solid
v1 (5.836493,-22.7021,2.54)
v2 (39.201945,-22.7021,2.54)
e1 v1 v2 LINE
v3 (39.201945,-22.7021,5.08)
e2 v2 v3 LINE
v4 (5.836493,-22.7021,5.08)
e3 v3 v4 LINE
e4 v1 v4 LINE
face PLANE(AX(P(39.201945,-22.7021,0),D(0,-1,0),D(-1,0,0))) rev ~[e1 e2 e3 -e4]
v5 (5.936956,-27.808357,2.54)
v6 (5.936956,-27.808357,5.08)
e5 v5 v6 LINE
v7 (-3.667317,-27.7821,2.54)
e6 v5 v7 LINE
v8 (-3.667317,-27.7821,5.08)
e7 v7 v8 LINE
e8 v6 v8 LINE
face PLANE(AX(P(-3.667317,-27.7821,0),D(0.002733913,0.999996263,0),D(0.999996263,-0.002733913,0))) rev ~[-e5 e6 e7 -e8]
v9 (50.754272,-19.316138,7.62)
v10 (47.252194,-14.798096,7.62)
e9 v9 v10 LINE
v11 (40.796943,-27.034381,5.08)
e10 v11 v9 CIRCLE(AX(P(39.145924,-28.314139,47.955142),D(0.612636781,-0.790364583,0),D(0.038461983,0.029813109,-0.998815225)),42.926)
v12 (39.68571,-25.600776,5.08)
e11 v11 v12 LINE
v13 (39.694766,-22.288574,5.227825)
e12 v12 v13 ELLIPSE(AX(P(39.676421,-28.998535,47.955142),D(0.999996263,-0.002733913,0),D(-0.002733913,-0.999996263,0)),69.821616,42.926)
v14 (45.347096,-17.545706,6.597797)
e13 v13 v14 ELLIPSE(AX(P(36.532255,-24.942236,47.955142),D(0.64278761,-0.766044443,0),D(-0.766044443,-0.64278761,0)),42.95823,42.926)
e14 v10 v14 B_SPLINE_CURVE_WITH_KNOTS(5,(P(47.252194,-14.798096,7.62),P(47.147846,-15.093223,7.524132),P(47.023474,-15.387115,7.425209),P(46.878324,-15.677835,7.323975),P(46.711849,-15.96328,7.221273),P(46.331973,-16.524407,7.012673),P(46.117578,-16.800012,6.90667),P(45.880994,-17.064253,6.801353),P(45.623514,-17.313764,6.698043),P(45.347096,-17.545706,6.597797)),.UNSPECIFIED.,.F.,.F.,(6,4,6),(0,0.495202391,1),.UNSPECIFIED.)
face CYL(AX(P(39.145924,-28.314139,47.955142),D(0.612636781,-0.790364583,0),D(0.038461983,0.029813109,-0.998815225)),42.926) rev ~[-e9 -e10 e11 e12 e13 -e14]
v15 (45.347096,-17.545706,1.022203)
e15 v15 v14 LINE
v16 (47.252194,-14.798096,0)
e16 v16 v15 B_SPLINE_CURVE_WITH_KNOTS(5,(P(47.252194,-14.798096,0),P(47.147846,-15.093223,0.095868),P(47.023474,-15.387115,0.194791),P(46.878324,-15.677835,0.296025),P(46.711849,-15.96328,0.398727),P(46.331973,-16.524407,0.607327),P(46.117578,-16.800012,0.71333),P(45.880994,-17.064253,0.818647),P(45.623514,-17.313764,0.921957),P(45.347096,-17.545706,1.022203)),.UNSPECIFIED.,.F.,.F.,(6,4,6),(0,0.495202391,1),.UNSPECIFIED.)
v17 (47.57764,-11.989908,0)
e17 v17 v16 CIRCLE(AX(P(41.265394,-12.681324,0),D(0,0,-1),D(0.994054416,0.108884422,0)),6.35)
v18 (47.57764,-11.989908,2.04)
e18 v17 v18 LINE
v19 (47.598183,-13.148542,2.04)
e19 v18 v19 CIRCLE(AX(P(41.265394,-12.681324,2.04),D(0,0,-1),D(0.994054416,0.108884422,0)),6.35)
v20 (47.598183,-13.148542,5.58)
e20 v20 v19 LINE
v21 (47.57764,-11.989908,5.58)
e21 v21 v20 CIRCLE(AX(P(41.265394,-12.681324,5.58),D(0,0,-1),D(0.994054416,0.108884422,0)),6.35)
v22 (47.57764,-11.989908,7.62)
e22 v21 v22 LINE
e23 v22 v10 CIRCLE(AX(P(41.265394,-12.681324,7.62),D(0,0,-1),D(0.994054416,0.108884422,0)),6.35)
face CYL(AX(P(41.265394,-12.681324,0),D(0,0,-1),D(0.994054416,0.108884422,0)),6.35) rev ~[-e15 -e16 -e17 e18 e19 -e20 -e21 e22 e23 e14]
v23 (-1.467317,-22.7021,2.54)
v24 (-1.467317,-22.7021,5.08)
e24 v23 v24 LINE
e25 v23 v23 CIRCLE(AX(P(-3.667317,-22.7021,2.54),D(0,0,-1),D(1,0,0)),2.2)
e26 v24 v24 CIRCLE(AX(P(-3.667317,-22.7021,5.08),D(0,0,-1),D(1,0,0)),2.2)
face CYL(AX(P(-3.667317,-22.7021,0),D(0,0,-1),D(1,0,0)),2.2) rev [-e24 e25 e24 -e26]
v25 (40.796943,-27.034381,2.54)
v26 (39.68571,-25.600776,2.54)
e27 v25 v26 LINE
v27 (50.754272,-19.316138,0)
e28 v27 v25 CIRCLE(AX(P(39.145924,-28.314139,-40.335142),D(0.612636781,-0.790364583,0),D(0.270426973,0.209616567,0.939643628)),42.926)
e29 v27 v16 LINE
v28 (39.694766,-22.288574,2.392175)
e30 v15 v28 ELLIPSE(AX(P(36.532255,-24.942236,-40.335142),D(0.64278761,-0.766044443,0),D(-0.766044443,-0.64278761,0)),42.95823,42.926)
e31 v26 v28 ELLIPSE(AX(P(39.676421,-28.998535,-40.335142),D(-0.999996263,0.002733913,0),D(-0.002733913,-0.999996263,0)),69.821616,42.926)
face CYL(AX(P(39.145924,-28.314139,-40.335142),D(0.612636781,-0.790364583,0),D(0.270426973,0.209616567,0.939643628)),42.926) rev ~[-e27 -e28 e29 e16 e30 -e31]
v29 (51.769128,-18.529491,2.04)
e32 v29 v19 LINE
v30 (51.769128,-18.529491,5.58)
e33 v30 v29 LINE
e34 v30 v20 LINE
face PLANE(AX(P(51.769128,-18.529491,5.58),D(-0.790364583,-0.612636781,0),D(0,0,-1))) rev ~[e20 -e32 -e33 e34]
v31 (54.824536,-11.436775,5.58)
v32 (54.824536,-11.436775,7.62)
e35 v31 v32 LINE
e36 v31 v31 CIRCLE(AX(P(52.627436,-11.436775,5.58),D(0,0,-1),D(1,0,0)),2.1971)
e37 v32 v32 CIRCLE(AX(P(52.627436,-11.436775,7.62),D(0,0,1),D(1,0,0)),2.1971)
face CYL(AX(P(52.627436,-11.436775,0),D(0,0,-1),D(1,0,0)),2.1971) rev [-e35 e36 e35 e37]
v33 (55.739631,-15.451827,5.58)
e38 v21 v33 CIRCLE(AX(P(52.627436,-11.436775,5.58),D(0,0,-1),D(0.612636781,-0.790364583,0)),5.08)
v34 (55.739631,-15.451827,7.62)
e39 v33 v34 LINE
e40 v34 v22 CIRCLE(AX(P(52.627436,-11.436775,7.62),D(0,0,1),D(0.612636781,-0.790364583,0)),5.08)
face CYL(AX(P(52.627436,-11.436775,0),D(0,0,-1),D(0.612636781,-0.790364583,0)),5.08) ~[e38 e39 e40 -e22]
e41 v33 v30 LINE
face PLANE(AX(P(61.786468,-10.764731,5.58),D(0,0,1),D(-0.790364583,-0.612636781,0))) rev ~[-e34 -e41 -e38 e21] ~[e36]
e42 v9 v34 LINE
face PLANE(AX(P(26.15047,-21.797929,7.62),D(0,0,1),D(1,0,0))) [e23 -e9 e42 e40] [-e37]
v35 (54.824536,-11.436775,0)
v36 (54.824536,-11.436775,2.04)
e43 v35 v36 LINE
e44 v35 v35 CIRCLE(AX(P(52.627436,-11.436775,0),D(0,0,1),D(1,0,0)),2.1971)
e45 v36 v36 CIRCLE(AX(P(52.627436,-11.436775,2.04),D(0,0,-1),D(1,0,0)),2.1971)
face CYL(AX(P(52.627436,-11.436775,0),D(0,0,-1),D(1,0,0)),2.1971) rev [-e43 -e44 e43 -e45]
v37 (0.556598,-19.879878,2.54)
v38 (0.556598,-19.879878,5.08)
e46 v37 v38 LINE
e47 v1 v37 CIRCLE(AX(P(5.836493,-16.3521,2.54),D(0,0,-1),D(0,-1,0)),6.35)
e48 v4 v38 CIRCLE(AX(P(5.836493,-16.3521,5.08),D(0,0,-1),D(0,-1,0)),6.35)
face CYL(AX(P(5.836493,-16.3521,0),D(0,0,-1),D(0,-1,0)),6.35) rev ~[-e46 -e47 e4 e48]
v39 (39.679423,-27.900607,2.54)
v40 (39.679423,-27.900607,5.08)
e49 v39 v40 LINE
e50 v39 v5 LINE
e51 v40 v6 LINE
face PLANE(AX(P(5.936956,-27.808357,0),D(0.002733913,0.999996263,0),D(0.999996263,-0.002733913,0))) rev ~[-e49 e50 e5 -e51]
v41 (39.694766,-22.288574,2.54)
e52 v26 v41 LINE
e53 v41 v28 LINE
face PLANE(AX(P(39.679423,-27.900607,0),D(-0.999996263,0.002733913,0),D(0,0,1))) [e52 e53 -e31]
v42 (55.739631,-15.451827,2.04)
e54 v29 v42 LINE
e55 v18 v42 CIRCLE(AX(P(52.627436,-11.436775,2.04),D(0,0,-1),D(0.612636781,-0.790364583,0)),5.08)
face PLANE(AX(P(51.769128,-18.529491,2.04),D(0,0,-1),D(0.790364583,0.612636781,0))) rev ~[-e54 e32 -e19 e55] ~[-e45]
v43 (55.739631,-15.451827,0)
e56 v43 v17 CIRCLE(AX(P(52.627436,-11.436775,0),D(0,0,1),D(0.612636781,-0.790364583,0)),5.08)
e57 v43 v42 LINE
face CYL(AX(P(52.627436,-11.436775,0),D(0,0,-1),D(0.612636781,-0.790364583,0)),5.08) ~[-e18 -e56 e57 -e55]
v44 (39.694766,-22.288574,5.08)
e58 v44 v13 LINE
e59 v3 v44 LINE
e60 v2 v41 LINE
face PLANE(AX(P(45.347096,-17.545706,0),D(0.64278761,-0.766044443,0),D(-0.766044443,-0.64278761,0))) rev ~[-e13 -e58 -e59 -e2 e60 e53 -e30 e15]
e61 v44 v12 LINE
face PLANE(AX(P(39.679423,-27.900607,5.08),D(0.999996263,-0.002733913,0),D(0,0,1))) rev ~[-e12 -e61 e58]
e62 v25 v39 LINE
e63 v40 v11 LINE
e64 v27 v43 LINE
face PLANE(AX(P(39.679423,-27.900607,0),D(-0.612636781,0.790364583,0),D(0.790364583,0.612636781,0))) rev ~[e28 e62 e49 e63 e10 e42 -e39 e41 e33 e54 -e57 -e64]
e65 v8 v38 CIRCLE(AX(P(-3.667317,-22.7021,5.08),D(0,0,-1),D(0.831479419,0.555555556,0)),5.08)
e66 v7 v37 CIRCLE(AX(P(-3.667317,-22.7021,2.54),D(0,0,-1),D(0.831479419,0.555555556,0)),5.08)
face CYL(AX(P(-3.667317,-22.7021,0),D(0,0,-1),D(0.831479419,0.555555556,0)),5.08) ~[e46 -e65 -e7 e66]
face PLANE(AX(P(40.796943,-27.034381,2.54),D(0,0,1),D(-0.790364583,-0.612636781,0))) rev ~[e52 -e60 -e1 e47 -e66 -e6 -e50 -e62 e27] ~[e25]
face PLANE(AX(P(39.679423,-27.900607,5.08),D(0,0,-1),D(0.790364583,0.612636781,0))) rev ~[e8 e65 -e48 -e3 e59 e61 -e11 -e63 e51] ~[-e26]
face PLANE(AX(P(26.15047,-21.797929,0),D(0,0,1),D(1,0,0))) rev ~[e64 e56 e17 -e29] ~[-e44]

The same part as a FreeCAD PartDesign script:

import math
import FreeCAD as App
import Part
import Sketcher
Q = App.Units.Quantity

doc = App.newDocument("Part")
params = doc.addObject("Spreadsheet::Sheet", "Params")
for row, (alias, value) in enumerate([
    ("sketch1_radius", "0.2 in"),
    ("sketch1_radius2", "0.25 in"),
    ("sketch1_diameter", "0.173 in"),
    ("sketch1_length", "0.8 in"),
    ("pad1_length", "0.3 in"),
    ("sketch2_height", "0.1 in"),
    ("pocket1_length", "1 in"),
    ("sketch3_radius", "1.69 in"),
    ("sketch3_height", "0.1 in"),
    ("pocket2_length", "1 in"),
], start=1):
    params.set(f"A{row}", alias)
    params.set(f"B{row}", "=" + value)
    params.setAlias(f"B{row}", alias)

body = doc.addObject("PartDesign::Body", "Body")

# Sketch on XY plane
sketch1 = body.newObject("Sketcher::SketchObject", "Sketch")
sketch1.AttachmentSupport = (doc.getObject("XY_Plane"), [""])
sketch1.MapMode = "FlatFace"
sketch1.addGeometry(Part.LineSegment(App.Vector(5.936956, -27.808357, 0), App.Vector(39.679423, -27.900607, 0)), False)
sketch1.addGeometry(Part.LineSegment(App.Vector(39.679423, -27.900607, 0), App.Vector(55.739631, -15.451827, 0)), False)
sketch1.addGeometry(Part.ArcOfCircle(Part.Circle(App.Vector(52.627436, -11.436775, 0), App.Vector(0, 0, 1), 5.08), math.radians(-52.219595), math.radians(186.251011)), False)
sketch1.addGeometry(Part.ArcOfCircle(Part.Circle(App.Vector(41.265394, -12.681324, 0), App.Vector(0, 0, 1), 6.35), math.radians(-50), math.radians(6.251011)), False)
sketch1.addGeometry(Part.LineSegment(App.Vector(45.347096, -17.545706, 0), App.Vector(39.201945, -22.7021, 0)), False)
sketch1.addGeometry(Part.LineSegment(App.Vector(39.201945, -22.7021, 0), App.Vector(5.836493, -22.7021, 0)), False)
sketch1.addGeometry(Part.ArcOfCircle(Part.Circle(App.Vector(5.836493, -16.3521, 0), App.Vector(0, 0, 1), 6.35), math.radians(-146.251011), math.radians(-90)), False)
sketch1.addGeometry(Part.ArcOfCircle(Part.Circle(App.Vector(-3.667317, -22.7021, 0), App.Vector(0, 0, 1), 5.08), math.radians(33.748989), math.radians(270)), False)
sketch1.addGeometry(Part.LineSegment(App.Vector(-3.667317, -27.7821, 0), App.Vector(5.936956, -27.808357, 0)), False)
sketch1.addGeometry(Part.Circle(App.Vector(-3.667317, -22.7021, 0), App.Vector(0, 0, 1), 2.2), False)
sketch1.addGeometry(Part.Circle(App.Vector(52.627436, -11.436775, 0), App.Vector(0, 0, 1), 2.1971), False)
sketch1.addConstraint(Sketcher.Constraint("Coincident", 0, 2, 1, 1))
sketch1.addConstraint(Sketcher.Constraint("Tangent", 1, 2, 2, 1))
sketch1.addConstraint(Sketcher.Constraint("Tangent", 2, 2, 3, 2))
sketch1.addConstraint(Sketcher.Constraint("Tangent", 3, 1, 4, 1))
sketch1.addConstraint(Sketcher.Constraint("Coincident", 4, 2, 5, 1))
sketch1.addConstraint(Sketcher.Constraint("Tangent", 5, 2, 6, 2))
sketch1.addConstraint(Sketcher.Constraint("Tangent", 6, 1, 7, 1))
sketch1.addConstraint(Sketcher.Constraint("Coincident", 7, 2, 8, 1))
sketch1.addConstraint(Sketcher.Constraint("Coincident", 8, 2, 0, 1))
sketch1.addConstraint(Sketcher.Constraint("Horizontal", 5))
sketch1.addConstraint(Sketcher.Constraint("Coincident", 9, 3, 7, 3))
sketch1.addConstraint(Sketcher.Constraint("Coincident", 10, 3, 2, 3))
sketch1.addConstraint(Sketcher.Constraint("Equal", 3, 6))
sketch1.addConstraint(Sketcher.Constraint("Equal", 2, 7))
sketch1.addConstraint(Sketcher.Constraint("Parallel", 0, 8))
sketch1.addConstraint(Sketcher.Constraint("Horizontal", 9, 3, 4, 2))
sketch1.addConstraint(Sketcher.Constraint("Vertical", 9, 3, 7, 2))
sketch1.addConstraint(Sketcher.Constraint("Radius", 2, Q("0.2 in")))
sketch1.addConstraint(Sketcher.Constraint("Radius", 3, Q("0.25 in")))
sketch1.addConstraint(Sketcher.Constraint("Diameter", 10, Q("0.173 in")))
sketch1.addConstraint(Sketcher.Constraint("Angle", 4, Q("-140 deg")))
sketch1.addConstraint(Sketcher.Constraint("Distance", 1, Q("0.8 in")))
sketch1.addConstraint(Sketcher.Constraint("Diameter", 9, 4.4))
sketch1.addConstraint(Sketcher.Constraint("DistanceY", 6, 3, -1, 1, 16.3521))
sketch1.addConstraint(Sketcher.Constraint("DistanceX", -1, 1, 6, 1, 0.556598))
sketch1.addConstraint(Sketcher.Constraint("DistanceX", 6, 3, 3, 3, 35.428902))
sketch1.addConstraint(Sketcher.Constraint("DistanceY", 0, 2, 2, 2, 15.910699))
sketch1.addConstraint(Sketcher.Constraint("DistanceY", 3, 1, 2, 2, 5.555798))
sketch1.addConstraint(Sketcher.Constraint("Distance", 8, 9.604309))
sketch1.addConstraint(Sketcher.Constraint("DistanceX", 5, 2, 5, 1, 33.365452))
sketch1.setExpression("Constraints[17]", "Params.sketch1_radius")
sketch1.setExpression("Constraints[18]", "Params.sketch1_radius2")
sketch1.setExpression("Constraints[19]", "Params.sketch1_diameter")
sketch1.setExpression("Constraints[21]", "Params.sketch1_length")
pad1 = body.newObject("PartDesign::Pad", "Pad")
pad1.Profile = sketch1
pad1.setExpression("Length", "Params.pad1_length")

# Sketch on an angled plane
sketch2 = body.newObject("Sketcher::SketchObject", "Sketch001")
sketch2.Placement = App.Placement(App.Vector(-0.075981, -27.791918, 0), App.Rotation(App.Vector(0.999996263, -0.002733913, 0), App.Vector(0, 0, 1), App.Vector(-0.002733913, -0.999996263, 0), "ZXY"))
sketch2.addGeometry(Part.LineSegment(App.Vector(-12.18849, 2.54, 0), App.Vector(-12.18849, 0, 0)), False)
sketch2.addGeometry(Part.LineSegment(App.Vector(-12.18849, 0, 0), App.Vector(39.755552, 0, 0)), False)
sketch2.addGeometry(Part.LineSegment(App.Vector(39.755552, 0, 0), App.Vector(39.755552, 2.54, 0)), False)
sketch2.addGeometry(Part.LineSegment(App.Vector(39.755552, 2.54, 0), App.Vector(-12.18849, 2.54, 0)), False)
sketch2.addGeometry(Part.LineSegment(App.Vector(-12.18849, 7.62, 0), App.Vector(-12.18849, 5.08, 0)), False)
sketch2.addGeometry(Part.LineSegment(App.Vector(-12.18849, 5.08, 0), App.Vector(39.755552, 5.08, 0)), False)
sketch2.addGeometry(Part.LineSegment(App.Vector(39.755552, 5.08, 0), App.Vector(39.755552, 7.62, 0)), False)
sketch2.addGeometry(Part.LineSegment(App.Vector(39.755552, 7.62, 0), App.Vector(-12.18849, 7.62, 0)), False)
sketch2.addConstraint(Sketcher.Constraint("Coincident", 0, 2, 1, 1))
sketch2.addConstraint(Sketcher.Constraint("Coincident", 1, 2, 2, 1))
sketch2.addConstraint(Sketcher.Constraint("Coincident", 2, 2, 3, 1))
sketch2.addConstraint(Sketcher.Constraint("Coincident", 3, 2, 0, 1))
sketch2.addConstraint(Sketcher.Constraint("Coincident", 4, 2, 5, 1))
sketch2.addConstraint(Sketcher.Constraint("Coincident", 5, 2, 6, 1))
sketch2.addConstraint(Sketcher.Constraint("Coincident", 6, 2, 7, 1))
sketch2.addConstraint(Sketcher.Constraint("Coincident", 7, 2, 4, 1))
sketch2.addConstraint(Sketcher.Constraint("Vertical", 0))
sketch2.addConstraint(Sketcher.Constraint("Horizontal", 1))
sketch2.addConstraint(Sketcher.Constraint("Vertical", 2))
sketch2.addConstraint(Sketcher.Constraint("Horizontal", 3))
sketch2.addConstraint(Sketcher.Constraint("Vertical", 4))
sketch2.addConstraint(Sketcher.Constraint("Horizontal", 5))
sketch2.addConstraint(Sketcher.Constraint("Vertical", 6))
sketch2.addConstraint(Sketcher.Constraint("Horizontal", 7))
sketch2.addConstraint(Sketcher.Constraint("PointOnObject", 0, 2, -1))
sketch2.addConstraint(Sketcher.Constraint("Vertical", 3, 2, 4, 2))
sketch2.addConstraint(Sketcher.Constraint("Vertical", 2, 2, 5, 2))
sketch2.addConstraint(Sketcher.Constraint("Equal", 2, 4))
sketch2.addConstraint(Sketcher.Constraint("DistanceY", 0, 2, 0, 1, Q("0.1 in")))
sketch2.addConstraint(Sketcher.Constraint("DistanceY", -1, 1, 4, 2, Q("0.2 in")))
sketch2.addConstraint(Sketcher.Constraint("DistanceX", 1, 1, 1, 2, 51.944042))
sketch2.addConstraint(Sketcher.Constraint("DistanceX", 0, 2, -1, 1, 12.18849))
sketch2.setExpression("Constraints[20]", "Params.sketch2_height")
pocket1 = body.newObject("PartDesign::Pocket", "Pocket")
pocket1.Profile = sketch2
pocket1.setExpression("Length", "Params.pocket1_length")
pocket1.Midplane = True

# Sketch on an angled plane
sketch3 = body.newObject("Sketcher::SketchObject", "Sketch002")
sketch3.Placement = App.Placement(App.Vector(28.402285, -36.641875, 0), App.Rotation(App.Vector(0.790364583, 0.612636781, 0), App.Vector(0, 0, 0.999999999), App.Vector(0.612636781, -0.790364583, 0), "ZXY"))
sketch3.addGeometry(Part.LineSegment(App.Vector(14.268273, 5.08, 0), App.Vector(15.682203, 5.08, 0)), False)
sketch3.addGeometry(Part.ArcOfCircle(Part.Circle(App.Vector(13.593269, 47.955142, 0), App.Vector(0, 0, 1), 42.926), math.radians(-87.21068), math.radians(-69.991794)), False)
sketch3.addGeometry(Part.LineSegment(App.Vector(28.280603, 7.62, 0), App.Vector(14.268273, 7.62, 0)), False)
sketch3.addGeometry(Part.LineSegment(App.Vector(14.268273, 7.62, 0), App.Vector(14.268273, 5.08, 0)), False)
sketch3.addGeometry(Part.LineSegment(App.Vector(29.564638, 5.58, 0), App.Vector(29.564638, 2.04, 0)), False)
sketch3.addGeometry(Part.LineSegment(App.Vector(29.564638, 2.04, 0), App.Vector(42.238966, 2.04, 0)), False)
sketch3.addGeometry(Part.LineSegment(App.Vector(42.238966, 2.04, 0), App.Vector(42.238966, 5.58, 0)), False)
sketch3.addGeometry(Part.LineSegment(App.Vector(42.238966, 5.58, 0), App.Vector(29.564638, 5.58, 0)), False)
sketch3.addGeometry(Part.LineSegment(App.Vector(15.682203, 2.54, 0), App.Vector(14.268273, 2.54, 0)), False)
sketch3.addGeometry(Part.LineSegment(App.Vector(14.268273, 2.54, 0), App.Vector(14.268273, 0, 0)), False)
sketch3.addGeometry(Part.LineSegment(App.Vector(14.268273, 0, 0), App.Vector(28.280603, 0, 0)), False)
sketch3.addGeometry(Part.ArcOfCircle(Part.Circle(App.Vector(13.593269, -40.335142, 0), App.Vector(0, 0, 1), 42.926), math.radians(69.991794), math.radians(87.21068)), False)
sketch3.addConstraint(Sketcher.Constraint("Coincident", 0, 2, 1, 1))
sketch3.addConstraint(Sketcher.Constraint("Coincident", 1, 2, 2, 1))
sketch3.addConstraint(Sketcher.Constraint("Coincident", 2, 2, 3, 1))
sketch3.addConstraint(Sketcher.Constraint("Coincident", 3, 2, 0, 1))
sketch3.addConstraint(Sketcher.Constraint("Coincident", 4, 2, 5, 1))
sketch3.addConstraint(Sketcher.Constraint("Coincident", 5, 2, 6, 1))
sketch3.addConstraint(Sketcher.Constraint("Coincident", 6, 2, 7, 1))
sketch3.addConstraint(Sketcher.Constraint("Coincident", 7, 2, 4, 1))
sketch3.addConstraint(Sketcher.Constraint("Coincident", 8, 2, 9, 1))
sketch3.addConstraint(Sketcher.Constraint("Coincident", 9, 2, 10, 1))
sketch3.addConstraint(Sketcher.Constraint("Coincident", 10, 2, 11, 1))
sketch3.addConstraint(Sketcher.Constraint("Coincident", 11, 2, 8, 1))
sketch3.addConstraint(Sketcher.Constraint("Horizontal", 0))
sketch3.addConstraint(Sketcher.Constraint("Horizontal", 2))
sketch3.addConstraint(Sketcher.Constraint("Vertical", 3))
sketch3.addConstraint(Sketcher.Constraint("Vertical", 4))
sketch3.addConstraint(Sketcher.Constraint("Horizontal", 5))
sketch3.addConstraint(Sketcher.Constraint("Vertical", 6))
sketch3.addConstraint(Sketcher.Constraint("Horizontal", 7))
sketch3.addConstraint(Sketcher.Constraint("Horizontal", 8))
sketch3.addConstraint(Sketcher.Constraint("Vertical", 9))
sketch3.addConstraint(Sketcher.Constraint("Horizontal", 10))
sketch3.addConstraint(Sketcher.Constraint("Equal", 1, 11))
sketch3.addConstraint(Sketcher.Constraint("PointOnObject", 9, 2, -1))
sketch3.addConstraint(Sketcher.Constraint("Vertical", 1, 3, 11, 3))
sketch3.addConstraint(Sketcher.Constraint("Vertical", 3, 2, 8, 2))
sketch3.addConstraint(Sketcher.Constraint("Vertical", 1, 2, 10, 2))
sketch3.addConstraint(Sketcher.Constraint("Vertical", 0, 2, 11, 2))
sketch3.addConstraint(Sketcher.Constraint("Radius", 1, Q("1.69 in")))
sketch3.addConstraint(Sketcher.Constraint("DistanceY", 3, 2, 3, 1, Q("0.1 in")))
sketch3.addConstraint(Sketcher.Constraint("DistanceY", -1, 1, 0, 2, Q("0.2 in")))
sketch3.addConstraint(Sketcher.Constraint("DistanceX", 0, 2, 1, 2, Q("0.496 in")))
sketch3.addConstraint(Sketcher.Constraint("DistanceY", 4, 2, 4, 1, 3.54))
sketch3.addConstraint(Sketcher.Constraint("DistanceX", 0, 1, 0, 2, 1.41393))
sketch3.addConstraint(Sketcher.Constraint("DistanceY", -1, 1, 4, 2, 2.04))
sketch3.addConstraint(Sketcher.Constraint("DistanceX", 5, 1, 5, 2, 12.674328))
sketch3.addConstraint(Sketcher.Constraint("DistanceX", -1, 1, 1, 3, 13.593269))
sketch3.addConstraint(Sketcher.Constraint("DistanceX", 11, 3, 4, 2, 15.971368))
sketch3.setExpression("Constraints[28]", "Params.sketch3_radius")
sketch3.setExpression("Constraints[29]", "Params.sketch3_height")
pocket2 = body.newObject("PartDesign::Pocket", "Pocket001")
pocket2.Profile = sketch3
pocket2.setExpression("Length", "Params.pocket2_length")

doc.recompute()
